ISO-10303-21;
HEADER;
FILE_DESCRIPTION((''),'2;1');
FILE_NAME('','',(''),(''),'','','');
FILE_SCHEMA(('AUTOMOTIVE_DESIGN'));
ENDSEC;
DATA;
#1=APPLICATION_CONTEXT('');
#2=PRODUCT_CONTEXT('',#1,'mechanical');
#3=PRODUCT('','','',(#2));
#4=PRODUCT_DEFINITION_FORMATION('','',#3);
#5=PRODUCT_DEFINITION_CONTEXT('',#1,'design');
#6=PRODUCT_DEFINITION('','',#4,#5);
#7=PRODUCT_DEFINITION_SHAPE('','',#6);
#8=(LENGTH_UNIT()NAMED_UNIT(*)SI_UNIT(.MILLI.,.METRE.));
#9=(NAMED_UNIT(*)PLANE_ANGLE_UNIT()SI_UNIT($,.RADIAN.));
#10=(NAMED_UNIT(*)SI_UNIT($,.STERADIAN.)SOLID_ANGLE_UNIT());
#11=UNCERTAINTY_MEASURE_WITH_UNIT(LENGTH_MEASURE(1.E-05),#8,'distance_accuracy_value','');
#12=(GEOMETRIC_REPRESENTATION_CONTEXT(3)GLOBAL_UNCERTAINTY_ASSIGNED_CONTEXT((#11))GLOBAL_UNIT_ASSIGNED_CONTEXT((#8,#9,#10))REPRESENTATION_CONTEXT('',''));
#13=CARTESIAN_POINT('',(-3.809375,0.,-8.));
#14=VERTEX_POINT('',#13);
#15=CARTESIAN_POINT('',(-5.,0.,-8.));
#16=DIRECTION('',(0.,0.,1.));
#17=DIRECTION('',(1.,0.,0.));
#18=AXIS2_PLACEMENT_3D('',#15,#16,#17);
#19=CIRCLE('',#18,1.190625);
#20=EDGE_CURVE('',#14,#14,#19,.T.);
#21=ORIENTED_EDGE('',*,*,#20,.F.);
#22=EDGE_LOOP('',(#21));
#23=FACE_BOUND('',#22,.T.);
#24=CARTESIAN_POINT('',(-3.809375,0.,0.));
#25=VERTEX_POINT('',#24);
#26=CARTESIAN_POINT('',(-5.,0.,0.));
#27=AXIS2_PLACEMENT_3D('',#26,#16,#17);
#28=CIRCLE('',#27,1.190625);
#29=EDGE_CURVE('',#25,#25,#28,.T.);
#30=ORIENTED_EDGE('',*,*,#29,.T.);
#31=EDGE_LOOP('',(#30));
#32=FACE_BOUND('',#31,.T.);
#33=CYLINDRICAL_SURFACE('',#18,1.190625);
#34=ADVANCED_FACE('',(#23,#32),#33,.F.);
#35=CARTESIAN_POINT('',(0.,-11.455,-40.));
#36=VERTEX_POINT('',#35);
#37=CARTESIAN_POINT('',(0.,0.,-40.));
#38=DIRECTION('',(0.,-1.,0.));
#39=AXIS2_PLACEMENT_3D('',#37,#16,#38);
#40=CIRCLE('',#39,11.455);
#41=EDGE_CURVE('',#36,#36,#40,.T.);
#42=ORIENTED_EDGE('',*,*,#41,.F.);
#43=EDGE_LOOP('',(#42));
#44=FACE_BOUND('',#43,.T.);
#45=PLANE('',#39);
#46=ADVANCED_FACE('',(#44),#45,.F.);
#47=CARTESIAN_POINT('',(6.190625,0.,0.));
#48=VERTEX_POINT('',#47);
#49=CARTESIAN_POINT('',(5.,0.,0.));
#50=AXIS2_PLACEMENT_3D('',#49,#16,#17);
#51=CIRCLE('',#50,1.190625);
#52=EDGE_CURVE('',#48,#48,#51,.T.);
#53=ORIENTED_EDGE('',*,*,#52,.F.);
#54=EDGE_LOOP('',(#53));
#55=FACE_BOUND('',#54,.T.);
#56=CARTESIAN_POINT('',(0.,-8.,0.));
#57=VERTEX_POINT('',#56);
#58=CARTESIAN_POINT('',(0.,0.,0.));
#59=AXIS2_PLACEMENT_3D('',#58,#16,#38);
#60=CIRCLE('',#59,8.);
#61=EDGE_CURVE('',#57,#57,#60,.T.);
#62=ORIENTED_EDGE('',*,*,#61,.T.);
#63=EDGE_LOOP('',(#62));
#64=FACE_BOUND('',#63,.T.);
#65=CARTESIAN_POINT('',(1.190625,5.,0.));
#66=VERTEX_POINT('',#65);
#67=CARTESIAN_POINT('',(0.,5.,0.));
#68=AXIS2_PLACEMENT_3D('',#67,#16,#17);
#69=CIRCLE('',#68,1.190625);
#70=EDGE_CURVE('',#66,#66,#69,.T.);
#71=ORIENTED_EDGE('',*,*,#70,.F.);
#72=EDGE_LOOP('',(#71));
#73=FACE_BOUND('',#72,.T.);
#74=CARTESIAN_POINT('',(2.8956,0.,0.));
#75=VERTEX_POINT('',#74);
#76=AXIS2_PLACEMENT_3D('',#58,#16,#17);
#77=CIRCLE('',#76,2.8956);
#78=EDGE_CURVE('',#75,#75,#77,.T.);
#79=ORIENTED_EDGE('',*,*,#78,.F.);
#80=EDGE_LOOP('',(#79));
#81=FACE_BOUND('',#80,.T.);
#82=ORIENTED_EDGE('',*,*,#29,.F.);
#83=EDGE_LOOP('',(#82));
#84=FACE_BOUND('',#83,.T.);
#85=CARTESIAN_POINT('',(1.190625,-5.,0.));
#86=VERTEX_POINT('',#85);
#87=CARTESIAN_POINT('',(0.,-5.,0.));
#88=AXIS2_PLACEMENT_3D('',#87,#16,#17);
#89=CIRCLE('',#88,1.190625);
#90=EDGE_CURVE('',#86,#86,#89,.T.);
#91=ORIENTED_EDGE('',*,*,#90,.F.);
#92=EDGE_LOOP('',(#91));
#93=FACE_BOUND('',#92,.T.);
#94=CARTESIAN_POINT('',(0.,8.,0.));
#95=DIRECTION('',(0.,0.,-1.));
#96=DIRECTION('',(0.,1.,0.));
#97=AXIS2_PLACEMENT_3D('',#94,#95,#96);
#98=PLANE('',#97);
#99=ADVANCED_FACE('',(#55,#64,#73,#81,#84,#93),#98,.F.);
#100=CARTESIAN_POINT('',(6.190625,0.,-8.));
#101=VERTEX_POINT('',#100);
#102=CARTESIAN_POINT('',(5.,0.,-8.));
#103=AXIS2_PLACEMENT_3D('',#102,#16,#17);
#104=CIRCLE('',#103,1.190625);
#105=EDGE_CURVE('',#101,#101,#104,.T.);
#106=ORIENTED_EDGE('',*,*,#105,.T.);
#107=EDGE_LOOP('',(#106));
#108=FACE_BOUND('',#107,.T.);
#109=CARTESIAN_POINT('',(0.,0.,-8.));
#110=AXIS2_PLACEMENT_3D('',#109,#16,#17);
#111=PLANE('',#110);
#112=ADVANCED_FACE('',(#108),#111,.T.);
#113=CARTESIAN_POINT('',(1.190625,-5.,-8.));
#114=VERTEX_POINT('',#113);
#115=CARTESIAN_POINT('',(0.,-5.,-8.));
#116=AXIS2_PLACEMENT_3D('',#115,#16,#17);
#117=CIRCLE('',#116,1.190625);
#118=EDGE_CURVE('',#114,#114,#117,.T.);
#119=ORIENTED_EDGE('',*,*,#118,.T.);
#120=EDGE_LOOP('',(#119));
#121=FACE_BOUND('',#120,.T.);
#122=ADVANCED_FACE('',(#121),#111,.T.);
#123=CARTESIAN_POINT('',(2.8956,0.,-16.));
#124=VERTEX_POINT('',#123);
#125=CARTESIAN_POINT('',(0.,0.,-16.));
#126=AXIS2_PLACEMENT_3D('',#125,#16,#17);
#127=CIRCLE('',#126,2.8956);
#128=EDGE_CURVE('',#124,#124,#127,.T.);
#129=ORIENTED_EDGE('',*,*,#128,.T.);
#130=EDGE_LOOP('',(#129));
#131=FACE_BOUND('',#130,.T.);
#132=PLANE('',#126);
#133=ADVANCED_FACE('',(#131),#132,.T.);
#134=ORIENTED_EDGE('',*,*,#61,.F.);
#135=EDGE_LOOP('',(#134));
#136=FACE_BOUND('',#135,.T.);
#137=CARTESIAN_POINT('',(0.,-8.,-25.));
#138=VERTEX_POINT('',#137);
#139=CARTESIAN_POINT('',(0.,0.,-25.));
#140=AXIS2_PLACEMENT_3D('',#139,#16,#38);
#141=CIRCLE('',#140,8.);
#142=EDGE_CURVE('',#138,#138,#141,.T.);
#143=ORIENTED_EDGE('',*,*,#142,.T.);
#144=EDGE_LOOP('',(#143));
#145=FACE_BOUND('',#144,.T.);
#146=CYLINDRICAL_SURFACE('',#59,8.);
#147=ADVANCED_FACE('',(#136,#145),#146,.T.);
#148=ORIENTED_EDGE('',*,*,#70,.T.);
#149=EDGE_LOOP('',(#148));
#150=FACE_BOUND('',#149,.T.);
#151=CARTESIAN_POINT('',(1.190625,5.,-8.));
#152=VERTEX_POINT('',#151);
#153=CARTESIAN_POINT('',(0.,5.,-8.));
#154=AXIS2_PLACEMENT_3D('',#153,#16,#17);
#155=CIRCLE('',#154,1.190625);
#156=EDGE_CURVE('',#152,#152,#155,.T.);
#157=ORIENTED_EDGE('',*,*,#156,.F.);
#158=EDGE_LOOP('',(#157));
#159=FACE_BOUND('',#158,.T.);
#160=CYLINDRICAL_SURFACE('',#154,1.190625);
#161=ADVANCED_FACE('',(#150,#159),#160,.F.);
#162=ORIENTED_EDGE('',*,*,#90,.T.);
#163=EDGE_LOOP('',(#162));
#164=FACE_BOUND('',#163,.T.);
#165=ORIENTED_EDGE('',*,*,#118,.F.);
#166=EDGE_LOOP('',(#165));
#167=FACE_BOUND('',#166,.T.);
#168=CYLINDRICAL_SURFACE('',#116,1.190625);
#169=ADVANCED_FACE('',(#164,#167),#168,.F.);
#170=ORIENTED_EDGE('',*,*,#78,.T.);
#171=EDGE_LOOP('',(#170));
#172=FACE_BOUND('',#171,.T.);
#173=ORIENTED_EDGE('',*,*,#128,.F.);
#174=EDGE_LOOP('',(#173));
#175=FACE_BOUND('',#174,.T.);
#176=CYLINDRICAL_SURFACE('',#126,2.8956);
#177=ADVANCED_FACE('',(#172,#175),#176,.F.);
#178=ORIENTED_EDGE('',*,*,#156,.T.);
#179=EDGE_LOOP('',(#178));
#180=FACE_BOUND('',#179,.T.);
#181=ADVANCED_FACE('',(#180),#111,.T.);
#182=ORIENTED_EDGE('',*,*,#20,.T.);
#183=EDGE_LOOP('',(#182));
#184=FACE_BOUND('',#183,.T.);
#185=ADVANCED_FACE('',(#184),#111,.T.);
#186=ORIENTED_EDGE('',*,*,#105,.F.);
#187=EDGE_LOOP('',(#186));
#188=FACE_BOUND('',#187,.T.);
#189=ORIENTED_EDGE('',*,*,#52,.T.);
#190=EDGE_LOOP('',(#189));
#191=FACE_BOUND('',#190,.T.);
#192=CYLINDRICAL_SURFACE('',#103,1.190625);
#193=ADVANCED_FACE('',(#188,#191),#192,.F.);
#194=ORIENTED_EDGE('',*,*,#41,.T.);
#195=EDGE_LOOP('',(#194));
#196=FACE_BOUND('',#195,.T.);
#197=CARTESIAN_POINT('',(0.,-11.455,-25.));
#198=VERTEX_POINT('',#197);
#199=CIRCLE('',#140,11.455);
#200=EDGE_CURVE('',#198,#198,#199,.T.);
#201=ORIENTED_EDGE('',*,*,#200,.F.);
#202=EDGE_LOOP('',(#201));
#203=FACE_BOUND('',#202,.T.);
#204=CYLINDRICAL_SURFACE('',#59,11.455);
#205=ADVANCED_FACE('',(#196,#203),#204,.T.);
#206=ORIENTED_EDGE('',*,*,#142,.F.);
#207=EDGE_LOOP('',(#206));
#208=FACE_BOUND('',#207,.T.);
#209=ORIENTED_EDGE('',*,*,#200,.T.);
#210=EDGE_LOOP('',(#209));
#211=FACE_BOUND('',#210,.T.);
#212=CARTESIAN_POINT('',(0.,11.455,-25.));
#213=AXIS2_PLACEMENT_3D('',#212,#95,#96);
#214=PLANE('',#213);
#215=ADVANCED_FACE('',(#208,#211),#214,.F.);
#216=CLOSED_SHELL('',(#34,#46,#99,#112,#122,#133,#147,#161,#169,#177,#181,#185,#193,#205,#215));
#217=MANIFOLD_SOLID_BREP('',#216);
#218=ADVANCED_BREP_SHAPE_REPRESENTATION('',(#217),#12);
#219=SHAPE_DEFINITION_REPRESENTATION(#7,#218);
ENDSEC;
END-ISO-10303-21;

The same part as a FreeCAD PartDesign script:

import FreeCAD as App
import Part
import Sketcher


def add_polygon(sketch, points):
    """Adds a closed chain of lines whose ends are joined by coincident constraints."""
    first, n = sketch.GeometryCount, len(points)
    for a, b in zip(points, points[1:] + points[:1]):
        sketch.addGeometry(Part.LineSegment(App.Vector(*a, 0), App.Vector(*b, 0)), False)
    for i in range(n):
        sketch.addConstraint(Sketcher.Constraint("Coincident", first + i, 2, first + (i + 1) % n, 1))

doc = App.newDocument("Part")
body = doc.addObject("PartDesign::Body", "Body")

# Sketch on YZ plane
sketch1 = body.newObject("Sketcher::SketchObject", "Sketch")
sketch1.AttachmentSupport = (doc.getObject("YZ_Plane"), [""])
sketch1.MapMode = "FlatFace"
add_polygon(sketch1, [(0, 0), (0, -40), (11.455, -40), (11.455, -25), (8, -25), (8, 0)])  # lines 0-5
sketch1.addConstraint(Sketcher.Constraint("Vertical", 0))
sketch1.addConstraint(Sketcher.Constraint("Horizontal", 1))
sketch1.addConstraint(Sketcher.Constraint("Vertical", 2))
sketch1.addConstraint(Sketcher.Constraint("Horizontal", 3))
sketch1.addConstraint(Sketcher.Constraint("Vertical", 4))
sketch1.addConstraint(Sketcher.Constraint("Horizontal", 5))
sketch1.addConstraint(Sketcher.Constraint("Coincident", 5, 2, -1, 1))
sketch1.addConstraint(Sketcher.Constraint("DistanceX", 5, 2, 5, 1, 8.0))
sketch1.addConstraint(Sketcher.Constraint("DistanceY", 0, 2, 0, 1, 40.0))
sketch1.addConstraint(Sketcher.Constraint("DistanceY", 2, 1, 2, 2, 15.0))
sketch1.addConstraint(Sketcher.Constraint("DistanceX", 1, 1, 1, 2, 11.455))
revolution = body.newObject("PartDesign::Revolution", "Revolution")
revolution.Profile = sketch1
revolution.ReferenceAxis = (sketch1, ["V_Axis"])
revolution.Angle = 360

# Sketch on XY plane
sketch2 = body.newObject("Sketcher::SketchObject", "Sketch001")
sketch2.AttachmentSupport = (doc.getObject("XY_Plane"), [""])
sketch2.MapMode = "FlatFace"
sketch2.addGeometry(Part.Circle(App.Vector(-5, 0, 0), App.Vector(0, 0, 1), 1.190625), False)
sketch2.addGeometry(Part.Circle(App.Vector(0, -5, 0), App.Vector(0, 0, 1), 1.190625), False)
sketch2.addGeometry(Part.Circle(App.Vector(0, 5, 0), App.Vector(0, 0, 1), 1.190625), False)
sketch2.addGeometry(Part.Circle(App.Vector(5, 0, 0), App.Vector(0, 0, 1), 1.190625), False)
sketch2.addConstraint(Sketcher.Constraint("Equal", 0, 1))
sketch2.addConstraint(Sketcher.Constraint("Equal", 1, 2))
sketch2.addConstraint(Sketcher.Constraint("Equal", 2, 3))
sketch2.addConstraint(Sketcher.Constraint("Symmetric", 1, 3, 2, 3, -1, 1))
sketch2.addConstraint(Sketcher.Constraint("Symmetric", 0, 3, 3, 3, -1, 1))
sketch2.addConstraint(Sketcher.Constraint("PointOnObject", 0, 3, -1))
sketch2.addConstraint(Sketcher.Constraint("PointOnObject", 1, 3, -2))
sketch2.addConstraint(Sketcher.Constraint("DistanceX", 0, 3, -1, 1, 5.0))
sketch2.addConstraint(Sketcher.Constraint("DistanceY", 1, 3, -1, 1, 5.0))
sketch2.addConstraint(Sketcher.Constraint("Diameter", 0, 2.38125))
pocket1 = body.newObject("PartDesign::Pocket", "Pocket")
pocket1.Profile = sketch2
pocket1.Length = 8

# Sketch on XY plane
sketch3 = body.newObject("Sketcher::SketchObject", "Sketch002")
sketch3.AttachmentSupport = (doc.getObject("XY_Plane"), [""])
sketch3.MapMode = "FlatFace"
sketch3.addGeometry(Part.Circle(App.Vector(0, 0, 0), App.Vector(0, 0, 1), 2.8956), False)
sketch3.addConstraint(Sketcher.Constraint("Coincident", 0, 3, -1, 1))
sketch3.addConstraint(Sketcher.Constraint("Diameter", 0, 5.7912))
pocket2 = body.newObject("PartDesign::Pocket", "Pocket001")
pocket2.Profile = sketch3
pocket2.Length = 16

doc.recompute()
